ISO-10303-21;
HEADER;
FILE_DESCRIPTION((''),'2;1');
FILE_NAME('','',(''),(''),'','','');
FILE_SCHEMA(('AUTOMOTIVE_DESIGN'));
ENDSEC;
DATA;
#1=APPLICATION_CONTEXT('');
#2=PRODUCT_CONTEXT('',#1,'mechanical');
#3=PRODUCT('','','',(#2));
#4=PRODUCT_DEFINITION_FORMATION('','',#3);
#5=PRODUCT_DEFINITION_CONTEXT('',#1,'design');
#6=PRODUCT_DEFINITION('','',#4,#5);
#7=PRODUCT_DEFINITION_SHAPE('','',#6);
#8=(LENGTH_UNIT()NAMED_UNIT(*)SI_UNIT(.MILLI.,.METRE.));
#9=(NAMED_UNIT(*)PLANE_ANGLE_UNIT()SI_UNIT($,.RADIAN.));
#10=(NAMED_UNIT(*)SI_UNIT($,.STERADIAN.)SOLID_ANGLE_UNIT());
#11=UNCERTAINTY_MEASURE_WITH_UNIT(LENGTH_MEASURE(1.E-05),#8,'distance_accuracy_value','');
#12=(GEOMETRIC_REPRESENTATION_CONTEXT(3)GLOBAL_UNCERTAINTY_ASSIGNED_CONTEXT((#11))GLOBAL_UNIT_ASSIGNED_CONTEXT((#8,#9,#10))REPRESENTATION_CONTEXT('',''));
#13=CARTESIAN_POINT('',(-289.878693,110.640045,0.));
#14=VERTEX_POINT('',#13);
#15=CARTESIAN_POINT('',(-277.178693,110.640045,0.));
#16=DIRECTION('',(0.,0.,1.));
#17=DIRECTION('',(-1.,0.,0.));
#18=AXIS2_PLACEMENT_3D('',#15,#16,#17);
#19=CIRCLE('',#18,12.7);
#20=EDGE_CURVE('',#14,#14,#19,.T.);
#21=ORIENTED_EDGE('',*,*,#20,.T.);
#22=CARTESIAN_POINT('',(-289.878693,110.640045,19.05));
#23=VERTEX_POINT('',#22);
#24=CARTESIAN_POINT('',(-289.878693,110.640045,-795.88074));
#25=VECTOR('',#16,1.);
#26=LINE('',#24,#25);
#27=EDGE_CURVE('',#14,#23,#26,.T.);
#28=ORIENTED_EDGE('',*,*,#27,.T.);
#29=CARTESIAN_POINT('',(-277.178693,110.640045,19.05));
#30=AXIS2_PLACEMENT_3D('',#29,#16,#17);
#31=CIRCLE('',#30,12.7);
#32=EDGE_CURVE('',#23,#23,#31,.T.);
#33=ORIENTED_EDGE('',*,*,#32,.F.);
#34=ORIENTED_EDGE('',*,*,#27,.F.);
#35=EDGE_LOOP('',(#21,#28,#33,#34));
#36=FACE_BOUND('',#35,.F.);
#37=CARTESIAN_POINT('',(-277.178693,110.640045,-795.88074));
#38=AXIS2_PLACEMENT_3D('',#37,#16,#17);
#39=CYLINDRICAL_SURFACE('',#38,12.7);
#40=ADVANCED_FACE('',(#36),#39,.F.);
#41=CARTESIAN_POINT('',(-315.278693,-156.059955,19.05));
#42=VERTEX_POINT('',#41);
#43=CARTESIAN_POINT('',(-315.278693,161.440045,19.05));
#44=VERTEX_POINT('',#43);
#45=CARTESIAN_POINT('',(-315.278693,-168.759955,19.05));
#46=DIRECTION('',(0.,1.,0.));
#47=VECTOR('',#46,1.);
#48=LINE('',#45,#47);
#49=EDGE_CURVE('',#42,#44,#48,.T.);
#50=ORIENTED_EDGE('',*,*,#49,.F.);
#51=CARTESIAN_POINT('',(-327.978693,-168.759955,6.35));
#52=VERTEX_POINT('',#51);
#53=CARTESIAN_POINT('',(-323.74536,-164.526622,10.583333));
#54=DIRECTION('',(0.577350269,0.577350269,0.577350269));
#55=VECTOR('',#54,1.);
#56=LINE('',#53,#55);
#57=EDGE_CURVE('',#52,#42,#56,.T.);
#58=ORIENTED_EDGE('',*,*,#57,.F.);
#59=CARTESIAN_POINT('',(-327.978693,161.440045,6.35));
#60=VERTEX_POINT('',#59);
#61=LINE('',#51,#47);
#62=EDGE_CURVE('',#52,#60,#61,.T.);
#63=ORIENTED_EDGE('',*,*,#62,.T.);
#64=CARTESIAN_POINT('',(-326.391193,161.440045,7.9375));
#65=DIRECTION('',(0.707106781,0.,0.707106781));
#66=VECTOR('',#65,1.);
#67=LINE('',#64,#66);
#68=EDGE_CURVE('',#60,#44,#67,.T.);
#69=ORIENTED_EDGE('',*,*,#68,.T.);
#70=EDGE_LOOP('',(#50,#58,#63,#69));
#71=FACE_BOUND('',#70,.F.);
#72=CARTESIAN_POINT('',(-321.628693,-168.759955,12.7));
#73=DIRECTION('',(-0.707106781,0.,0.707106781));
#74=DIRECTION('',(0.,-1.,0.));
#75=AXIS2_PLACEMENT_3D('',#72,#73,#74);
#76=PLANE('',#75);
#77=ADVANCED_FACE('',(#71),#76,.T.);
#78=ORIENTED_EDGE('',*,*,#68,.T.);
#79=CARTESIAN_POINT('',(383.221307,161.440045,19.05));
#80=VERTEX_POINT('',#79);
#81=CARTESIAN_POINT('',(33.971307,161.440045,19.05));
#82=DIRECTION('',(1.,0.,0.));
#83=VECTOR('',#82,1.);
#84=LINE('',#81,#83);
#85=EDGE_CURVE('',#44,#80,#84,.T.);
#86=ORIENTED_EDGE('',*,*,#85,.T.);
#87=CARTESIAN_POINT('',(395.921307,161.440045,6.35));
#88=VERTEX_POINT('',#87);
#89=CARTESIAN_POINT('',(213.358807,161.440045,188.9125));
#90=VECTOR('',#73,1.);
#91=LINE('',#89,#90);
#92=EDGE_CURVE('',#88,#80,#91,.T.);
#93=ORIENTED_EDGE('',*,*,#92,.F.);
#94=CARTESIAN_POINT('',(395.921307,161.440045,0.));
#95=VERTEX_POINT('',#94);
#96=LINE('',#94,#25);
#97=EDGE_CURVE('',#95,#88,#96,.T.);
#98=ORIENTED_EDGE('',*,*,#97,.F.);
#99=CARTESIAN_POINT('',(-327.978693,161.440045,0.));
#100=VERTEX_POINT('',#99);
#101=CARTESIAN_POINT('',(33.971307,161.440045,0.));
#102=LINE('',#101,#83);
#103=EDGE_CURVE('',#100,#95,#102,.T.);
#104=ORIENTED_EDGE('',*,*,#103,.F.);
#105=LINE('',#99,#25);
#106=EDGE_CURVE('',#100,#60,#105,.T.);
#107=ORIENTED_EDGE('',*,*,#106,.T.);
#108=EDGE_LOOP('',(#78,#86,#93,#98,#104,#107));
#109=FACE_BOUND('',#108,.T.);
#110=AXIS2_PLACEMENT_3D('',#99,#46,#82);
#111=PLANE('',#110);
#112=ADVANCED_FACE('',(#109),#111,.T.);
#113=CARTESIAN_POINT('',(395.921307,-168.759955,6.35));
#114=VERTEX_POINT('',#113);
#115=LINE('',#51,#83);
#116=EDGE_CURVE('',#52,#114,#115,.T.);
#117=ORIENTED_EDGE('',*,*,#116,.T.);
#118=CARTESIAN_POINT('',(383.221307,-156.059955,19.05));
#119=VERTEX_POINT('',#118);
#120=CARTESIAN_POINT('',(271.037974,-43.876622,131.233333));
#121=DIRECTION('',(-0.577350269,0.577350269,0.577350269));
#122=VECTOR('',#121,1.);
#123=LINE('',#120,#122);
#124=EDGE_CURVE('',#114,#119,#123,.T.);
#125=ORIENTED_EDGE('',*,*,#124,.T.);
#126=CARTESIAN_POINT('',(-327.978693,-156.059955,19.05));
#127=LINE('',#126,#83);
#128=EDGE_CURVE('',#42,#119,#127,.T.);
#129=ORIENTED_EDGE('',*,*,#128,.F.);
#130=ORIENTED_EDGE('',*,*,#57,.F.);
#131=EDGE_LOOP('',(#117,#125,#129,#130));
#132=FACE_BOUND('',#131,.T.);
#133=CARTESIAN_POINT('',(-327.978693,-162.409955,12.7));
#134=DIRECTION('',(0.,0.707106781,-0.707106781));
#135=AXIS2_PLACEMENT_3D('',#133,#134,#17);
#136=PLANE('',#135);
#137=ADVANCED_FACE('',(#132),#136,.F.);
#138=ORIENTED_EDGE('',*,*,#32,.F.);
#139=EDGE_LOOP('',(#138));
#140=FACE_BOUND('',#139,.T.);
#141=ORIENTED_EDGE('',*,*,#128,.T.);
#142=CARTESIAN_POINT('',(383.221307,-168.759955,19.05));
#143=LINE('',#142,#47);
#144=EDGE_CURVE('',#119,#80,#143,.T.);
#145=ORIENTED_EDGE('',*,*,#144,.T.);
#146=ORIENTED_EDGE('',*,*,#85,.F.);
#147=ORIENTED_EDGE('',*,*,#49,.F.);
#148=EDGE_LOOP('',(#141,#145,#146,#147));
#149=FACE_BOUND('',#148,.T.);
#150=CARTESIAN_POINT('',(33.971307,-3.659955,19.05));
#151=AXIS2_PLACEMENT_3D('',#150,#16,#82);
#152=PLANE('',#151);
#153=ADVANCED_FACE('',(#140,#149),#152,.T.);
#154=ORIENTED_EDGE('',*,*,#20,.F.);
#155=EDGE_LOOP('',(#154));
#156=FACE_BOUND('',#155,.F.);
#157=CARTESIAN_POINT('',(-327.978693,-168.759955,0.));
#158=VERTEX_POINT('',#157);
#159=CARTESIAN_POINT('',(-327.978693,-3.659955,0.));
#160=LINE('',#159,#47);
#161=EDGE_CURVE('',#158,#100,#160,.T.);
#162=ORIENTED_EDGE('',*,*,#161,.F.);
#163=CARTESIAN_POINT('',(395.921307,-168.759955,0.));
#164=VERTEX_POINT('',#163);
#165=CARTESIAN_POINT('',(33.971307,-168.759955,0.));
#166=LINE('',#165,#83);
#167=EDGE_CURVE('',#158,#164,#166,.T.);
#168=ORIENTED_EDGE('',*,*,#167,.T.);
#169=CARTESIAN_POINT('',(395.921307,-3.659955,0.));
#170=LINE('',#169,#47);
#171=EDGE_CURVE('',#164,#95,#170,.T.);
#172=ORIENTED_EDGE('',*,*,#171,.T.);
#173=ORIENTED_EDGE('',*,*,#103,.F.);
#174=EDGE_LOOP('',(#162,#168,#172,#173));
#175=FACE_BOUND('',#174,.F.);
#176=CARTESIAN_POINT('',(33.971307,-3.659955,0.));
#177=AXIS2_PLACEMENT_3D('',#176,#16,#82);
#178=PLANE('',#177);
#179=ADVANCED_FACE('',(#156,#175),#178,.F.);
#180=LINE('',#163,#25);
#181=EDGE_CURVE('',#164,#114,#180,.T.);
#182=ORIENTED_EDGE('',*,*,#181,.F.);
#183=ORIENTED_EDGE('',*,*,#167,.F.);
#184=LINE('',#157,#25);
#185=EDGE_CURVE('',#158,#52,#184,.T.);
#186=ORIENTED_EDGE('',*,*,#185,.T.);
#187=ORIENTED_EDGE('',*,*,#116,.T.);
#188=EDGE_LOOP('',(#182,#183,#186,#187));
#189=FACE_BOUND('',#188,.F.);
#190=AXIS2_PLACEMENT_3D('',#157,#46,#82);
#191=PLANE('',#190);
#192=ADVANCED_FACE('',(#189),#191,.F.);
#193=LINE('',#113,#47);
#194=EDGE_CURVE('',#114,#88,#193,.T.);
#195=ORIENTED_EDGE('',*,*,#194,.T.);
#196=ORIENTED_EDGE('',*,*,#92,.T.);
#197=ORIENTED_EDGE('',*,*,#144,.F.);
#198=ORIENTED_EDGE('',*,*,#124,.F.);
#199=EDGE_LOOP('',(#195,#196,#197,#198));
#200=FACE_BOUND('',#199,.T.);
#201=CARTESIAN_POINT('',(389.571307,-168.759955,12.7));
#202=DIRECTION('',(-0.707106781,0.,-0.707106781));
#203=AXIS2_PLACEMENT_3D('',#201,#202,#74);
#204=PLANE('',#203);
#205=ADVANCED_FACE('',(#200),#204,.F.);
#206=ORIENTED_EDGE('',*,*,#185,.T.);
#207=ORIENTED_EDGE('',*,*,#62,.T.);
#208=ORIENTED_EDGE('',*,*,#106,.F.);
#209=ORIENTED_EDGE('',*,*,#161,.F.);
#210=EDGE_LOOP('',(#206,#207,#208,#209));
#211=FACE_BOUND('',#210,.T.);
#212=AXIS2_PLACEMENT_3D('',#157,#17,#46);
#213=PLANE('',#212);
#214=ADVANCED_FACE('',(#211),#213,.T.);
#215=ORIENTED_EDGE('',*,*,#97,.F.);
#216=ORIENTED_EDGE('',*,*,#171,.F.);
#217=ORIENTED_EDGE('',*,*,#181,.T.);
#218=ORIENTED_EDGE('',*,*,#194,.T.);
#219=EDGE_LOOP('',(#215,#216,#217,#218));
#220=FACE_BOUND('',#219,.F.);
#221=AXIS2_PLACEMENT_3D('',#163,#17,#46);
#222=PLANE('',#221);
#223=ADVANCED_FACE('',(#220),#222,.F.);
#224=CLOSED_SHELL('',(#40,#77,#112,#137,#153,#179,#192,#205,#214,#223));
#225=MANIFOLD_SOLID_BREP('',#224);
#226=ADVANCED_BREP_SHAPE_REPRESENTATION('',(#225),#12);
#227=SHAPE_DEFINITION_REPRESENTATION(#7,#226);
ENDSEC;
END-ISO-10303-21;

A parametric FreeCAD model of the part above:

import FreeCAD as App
import Part
import Sketcher
Q = App.Units.Quantity


def edges_at(feature, points):
    """Names of the edges that pass closest to the given points."""
    edges = feature.Shape.Edges
    near = lambda p: min(range(len(edges)), key=lambda i: edges[i].distToShape(Part.Vertex(*p))[0])
    return sorted({f"Edge{near(p) + 1}" for p in points})


def add_polygon(sketch, points):
    """Adds a closed chain of lines whose ends are joined by coincident constraints."""
    first, n = sketch.GeometryCount, len(points)
    for a, b in zip(points, points[1:] + points[:1]):
        sketch.addGeometry(Part.LineSegment(App.Vector(*a, 0), App.Vector(*b, 0)), False)
    for i in range(n):
        sketch.addConstraint(Sketcher.Constraint("Coincident", first + i, 2, first + (i + 1) % n, 1))

doc = App.newDocument("Part")
body = doc.addObject("PartDesign::Body", "Body")

sketch1 = doc.addObject("Sketcher::SketchObject", "Sketch")
body.addObject(sketch1)
sketch1.AttachmentSupport = (doc.XY_Plane, [""])
sketch1.MapMode = "FlatFace"
add_polygon(sketch1, [(-328, 161), (-328, -169), (396, -169), (396, 161)])
sketch1.addConstraint(Sketcher.Constraint("Vertical", 0))
sketch1.addConstraint(Sketcher.Constraint("Horizontal", 1))
sketch1.addConstraint(Sketcher.Constraint("Vertical", 2))
sketch1.addConstraint(Sketcher.Constraint("Horizontal", 3))
sketch1.addConstraint(Sketcher.Constraint("DistanceY", 0, 2, 0, 1, Q("13 in")))
sketch1.addConstraint(Sketcher.Constraint("DistanceX", 1, 1, 1, 2, Q("28.5 in")))
sketch1.addConstraint(Sketcher.Constraint("DistanceX", 0, 2, -1, 1, 327.978693))
sketch1.addConstraint(Sketcher.Constraint("DistanceY", 0, 2, -1, 1, 168.759955))
pad1 = doc.addObject("PartDesign::Pad", "Pad")
body.addObject(pad1)
pad1.Profile = sketch1
pad1.Length = Q("0.75 in")
doc.recompute()

chamfer = doc.addObject("PartDesign::Chamfer", "Chamfer")
body.addObject(chamfer)
chamfer.Base = (pad1, edges_at(pad1, [(395.921, -3.66, 19.05), (-327.979, -3.66, 19.05), (33.971, -168.76, 19.05)]))
chamfer.Size = Q("0.5 in")

sketch2 = doc.addObject("Sketcher::SketchObject", "Sketch001")
body.addObject(sketch2)
sketch2.AttachmentSupport = (doc.XY_Plane, [""])
sketch2.MapMode = "FlatFace"
sketch2.addGeometry(Part.Circle(App.Vector(-277, 111, 0), App.Vector(0, 0, 1), 13), False)
sketch2.addConstraint(Sketcher.Constraint("Diameter", 0, Q("1 in")))
sketch2.addConstraint(Sketcher.Constraint("DistanceX", 0, 3, -1, 1, 277.178693))
sketch2.addConstraint(Sketcher.Constraint("DistanceY", -1, 1, 0, 3, 110.640045))
doc.recompute()
hole = doc.addObject("PartDesign::Hole", "Hole")
body.addObject(hole)
hole.Profile = sketch2
hole.ThreadType = "None"
hole.Diameter = Q("1 in")
hole.DepthType = "ThroughAll"
hole.Reversed = True

doc.recompute()
